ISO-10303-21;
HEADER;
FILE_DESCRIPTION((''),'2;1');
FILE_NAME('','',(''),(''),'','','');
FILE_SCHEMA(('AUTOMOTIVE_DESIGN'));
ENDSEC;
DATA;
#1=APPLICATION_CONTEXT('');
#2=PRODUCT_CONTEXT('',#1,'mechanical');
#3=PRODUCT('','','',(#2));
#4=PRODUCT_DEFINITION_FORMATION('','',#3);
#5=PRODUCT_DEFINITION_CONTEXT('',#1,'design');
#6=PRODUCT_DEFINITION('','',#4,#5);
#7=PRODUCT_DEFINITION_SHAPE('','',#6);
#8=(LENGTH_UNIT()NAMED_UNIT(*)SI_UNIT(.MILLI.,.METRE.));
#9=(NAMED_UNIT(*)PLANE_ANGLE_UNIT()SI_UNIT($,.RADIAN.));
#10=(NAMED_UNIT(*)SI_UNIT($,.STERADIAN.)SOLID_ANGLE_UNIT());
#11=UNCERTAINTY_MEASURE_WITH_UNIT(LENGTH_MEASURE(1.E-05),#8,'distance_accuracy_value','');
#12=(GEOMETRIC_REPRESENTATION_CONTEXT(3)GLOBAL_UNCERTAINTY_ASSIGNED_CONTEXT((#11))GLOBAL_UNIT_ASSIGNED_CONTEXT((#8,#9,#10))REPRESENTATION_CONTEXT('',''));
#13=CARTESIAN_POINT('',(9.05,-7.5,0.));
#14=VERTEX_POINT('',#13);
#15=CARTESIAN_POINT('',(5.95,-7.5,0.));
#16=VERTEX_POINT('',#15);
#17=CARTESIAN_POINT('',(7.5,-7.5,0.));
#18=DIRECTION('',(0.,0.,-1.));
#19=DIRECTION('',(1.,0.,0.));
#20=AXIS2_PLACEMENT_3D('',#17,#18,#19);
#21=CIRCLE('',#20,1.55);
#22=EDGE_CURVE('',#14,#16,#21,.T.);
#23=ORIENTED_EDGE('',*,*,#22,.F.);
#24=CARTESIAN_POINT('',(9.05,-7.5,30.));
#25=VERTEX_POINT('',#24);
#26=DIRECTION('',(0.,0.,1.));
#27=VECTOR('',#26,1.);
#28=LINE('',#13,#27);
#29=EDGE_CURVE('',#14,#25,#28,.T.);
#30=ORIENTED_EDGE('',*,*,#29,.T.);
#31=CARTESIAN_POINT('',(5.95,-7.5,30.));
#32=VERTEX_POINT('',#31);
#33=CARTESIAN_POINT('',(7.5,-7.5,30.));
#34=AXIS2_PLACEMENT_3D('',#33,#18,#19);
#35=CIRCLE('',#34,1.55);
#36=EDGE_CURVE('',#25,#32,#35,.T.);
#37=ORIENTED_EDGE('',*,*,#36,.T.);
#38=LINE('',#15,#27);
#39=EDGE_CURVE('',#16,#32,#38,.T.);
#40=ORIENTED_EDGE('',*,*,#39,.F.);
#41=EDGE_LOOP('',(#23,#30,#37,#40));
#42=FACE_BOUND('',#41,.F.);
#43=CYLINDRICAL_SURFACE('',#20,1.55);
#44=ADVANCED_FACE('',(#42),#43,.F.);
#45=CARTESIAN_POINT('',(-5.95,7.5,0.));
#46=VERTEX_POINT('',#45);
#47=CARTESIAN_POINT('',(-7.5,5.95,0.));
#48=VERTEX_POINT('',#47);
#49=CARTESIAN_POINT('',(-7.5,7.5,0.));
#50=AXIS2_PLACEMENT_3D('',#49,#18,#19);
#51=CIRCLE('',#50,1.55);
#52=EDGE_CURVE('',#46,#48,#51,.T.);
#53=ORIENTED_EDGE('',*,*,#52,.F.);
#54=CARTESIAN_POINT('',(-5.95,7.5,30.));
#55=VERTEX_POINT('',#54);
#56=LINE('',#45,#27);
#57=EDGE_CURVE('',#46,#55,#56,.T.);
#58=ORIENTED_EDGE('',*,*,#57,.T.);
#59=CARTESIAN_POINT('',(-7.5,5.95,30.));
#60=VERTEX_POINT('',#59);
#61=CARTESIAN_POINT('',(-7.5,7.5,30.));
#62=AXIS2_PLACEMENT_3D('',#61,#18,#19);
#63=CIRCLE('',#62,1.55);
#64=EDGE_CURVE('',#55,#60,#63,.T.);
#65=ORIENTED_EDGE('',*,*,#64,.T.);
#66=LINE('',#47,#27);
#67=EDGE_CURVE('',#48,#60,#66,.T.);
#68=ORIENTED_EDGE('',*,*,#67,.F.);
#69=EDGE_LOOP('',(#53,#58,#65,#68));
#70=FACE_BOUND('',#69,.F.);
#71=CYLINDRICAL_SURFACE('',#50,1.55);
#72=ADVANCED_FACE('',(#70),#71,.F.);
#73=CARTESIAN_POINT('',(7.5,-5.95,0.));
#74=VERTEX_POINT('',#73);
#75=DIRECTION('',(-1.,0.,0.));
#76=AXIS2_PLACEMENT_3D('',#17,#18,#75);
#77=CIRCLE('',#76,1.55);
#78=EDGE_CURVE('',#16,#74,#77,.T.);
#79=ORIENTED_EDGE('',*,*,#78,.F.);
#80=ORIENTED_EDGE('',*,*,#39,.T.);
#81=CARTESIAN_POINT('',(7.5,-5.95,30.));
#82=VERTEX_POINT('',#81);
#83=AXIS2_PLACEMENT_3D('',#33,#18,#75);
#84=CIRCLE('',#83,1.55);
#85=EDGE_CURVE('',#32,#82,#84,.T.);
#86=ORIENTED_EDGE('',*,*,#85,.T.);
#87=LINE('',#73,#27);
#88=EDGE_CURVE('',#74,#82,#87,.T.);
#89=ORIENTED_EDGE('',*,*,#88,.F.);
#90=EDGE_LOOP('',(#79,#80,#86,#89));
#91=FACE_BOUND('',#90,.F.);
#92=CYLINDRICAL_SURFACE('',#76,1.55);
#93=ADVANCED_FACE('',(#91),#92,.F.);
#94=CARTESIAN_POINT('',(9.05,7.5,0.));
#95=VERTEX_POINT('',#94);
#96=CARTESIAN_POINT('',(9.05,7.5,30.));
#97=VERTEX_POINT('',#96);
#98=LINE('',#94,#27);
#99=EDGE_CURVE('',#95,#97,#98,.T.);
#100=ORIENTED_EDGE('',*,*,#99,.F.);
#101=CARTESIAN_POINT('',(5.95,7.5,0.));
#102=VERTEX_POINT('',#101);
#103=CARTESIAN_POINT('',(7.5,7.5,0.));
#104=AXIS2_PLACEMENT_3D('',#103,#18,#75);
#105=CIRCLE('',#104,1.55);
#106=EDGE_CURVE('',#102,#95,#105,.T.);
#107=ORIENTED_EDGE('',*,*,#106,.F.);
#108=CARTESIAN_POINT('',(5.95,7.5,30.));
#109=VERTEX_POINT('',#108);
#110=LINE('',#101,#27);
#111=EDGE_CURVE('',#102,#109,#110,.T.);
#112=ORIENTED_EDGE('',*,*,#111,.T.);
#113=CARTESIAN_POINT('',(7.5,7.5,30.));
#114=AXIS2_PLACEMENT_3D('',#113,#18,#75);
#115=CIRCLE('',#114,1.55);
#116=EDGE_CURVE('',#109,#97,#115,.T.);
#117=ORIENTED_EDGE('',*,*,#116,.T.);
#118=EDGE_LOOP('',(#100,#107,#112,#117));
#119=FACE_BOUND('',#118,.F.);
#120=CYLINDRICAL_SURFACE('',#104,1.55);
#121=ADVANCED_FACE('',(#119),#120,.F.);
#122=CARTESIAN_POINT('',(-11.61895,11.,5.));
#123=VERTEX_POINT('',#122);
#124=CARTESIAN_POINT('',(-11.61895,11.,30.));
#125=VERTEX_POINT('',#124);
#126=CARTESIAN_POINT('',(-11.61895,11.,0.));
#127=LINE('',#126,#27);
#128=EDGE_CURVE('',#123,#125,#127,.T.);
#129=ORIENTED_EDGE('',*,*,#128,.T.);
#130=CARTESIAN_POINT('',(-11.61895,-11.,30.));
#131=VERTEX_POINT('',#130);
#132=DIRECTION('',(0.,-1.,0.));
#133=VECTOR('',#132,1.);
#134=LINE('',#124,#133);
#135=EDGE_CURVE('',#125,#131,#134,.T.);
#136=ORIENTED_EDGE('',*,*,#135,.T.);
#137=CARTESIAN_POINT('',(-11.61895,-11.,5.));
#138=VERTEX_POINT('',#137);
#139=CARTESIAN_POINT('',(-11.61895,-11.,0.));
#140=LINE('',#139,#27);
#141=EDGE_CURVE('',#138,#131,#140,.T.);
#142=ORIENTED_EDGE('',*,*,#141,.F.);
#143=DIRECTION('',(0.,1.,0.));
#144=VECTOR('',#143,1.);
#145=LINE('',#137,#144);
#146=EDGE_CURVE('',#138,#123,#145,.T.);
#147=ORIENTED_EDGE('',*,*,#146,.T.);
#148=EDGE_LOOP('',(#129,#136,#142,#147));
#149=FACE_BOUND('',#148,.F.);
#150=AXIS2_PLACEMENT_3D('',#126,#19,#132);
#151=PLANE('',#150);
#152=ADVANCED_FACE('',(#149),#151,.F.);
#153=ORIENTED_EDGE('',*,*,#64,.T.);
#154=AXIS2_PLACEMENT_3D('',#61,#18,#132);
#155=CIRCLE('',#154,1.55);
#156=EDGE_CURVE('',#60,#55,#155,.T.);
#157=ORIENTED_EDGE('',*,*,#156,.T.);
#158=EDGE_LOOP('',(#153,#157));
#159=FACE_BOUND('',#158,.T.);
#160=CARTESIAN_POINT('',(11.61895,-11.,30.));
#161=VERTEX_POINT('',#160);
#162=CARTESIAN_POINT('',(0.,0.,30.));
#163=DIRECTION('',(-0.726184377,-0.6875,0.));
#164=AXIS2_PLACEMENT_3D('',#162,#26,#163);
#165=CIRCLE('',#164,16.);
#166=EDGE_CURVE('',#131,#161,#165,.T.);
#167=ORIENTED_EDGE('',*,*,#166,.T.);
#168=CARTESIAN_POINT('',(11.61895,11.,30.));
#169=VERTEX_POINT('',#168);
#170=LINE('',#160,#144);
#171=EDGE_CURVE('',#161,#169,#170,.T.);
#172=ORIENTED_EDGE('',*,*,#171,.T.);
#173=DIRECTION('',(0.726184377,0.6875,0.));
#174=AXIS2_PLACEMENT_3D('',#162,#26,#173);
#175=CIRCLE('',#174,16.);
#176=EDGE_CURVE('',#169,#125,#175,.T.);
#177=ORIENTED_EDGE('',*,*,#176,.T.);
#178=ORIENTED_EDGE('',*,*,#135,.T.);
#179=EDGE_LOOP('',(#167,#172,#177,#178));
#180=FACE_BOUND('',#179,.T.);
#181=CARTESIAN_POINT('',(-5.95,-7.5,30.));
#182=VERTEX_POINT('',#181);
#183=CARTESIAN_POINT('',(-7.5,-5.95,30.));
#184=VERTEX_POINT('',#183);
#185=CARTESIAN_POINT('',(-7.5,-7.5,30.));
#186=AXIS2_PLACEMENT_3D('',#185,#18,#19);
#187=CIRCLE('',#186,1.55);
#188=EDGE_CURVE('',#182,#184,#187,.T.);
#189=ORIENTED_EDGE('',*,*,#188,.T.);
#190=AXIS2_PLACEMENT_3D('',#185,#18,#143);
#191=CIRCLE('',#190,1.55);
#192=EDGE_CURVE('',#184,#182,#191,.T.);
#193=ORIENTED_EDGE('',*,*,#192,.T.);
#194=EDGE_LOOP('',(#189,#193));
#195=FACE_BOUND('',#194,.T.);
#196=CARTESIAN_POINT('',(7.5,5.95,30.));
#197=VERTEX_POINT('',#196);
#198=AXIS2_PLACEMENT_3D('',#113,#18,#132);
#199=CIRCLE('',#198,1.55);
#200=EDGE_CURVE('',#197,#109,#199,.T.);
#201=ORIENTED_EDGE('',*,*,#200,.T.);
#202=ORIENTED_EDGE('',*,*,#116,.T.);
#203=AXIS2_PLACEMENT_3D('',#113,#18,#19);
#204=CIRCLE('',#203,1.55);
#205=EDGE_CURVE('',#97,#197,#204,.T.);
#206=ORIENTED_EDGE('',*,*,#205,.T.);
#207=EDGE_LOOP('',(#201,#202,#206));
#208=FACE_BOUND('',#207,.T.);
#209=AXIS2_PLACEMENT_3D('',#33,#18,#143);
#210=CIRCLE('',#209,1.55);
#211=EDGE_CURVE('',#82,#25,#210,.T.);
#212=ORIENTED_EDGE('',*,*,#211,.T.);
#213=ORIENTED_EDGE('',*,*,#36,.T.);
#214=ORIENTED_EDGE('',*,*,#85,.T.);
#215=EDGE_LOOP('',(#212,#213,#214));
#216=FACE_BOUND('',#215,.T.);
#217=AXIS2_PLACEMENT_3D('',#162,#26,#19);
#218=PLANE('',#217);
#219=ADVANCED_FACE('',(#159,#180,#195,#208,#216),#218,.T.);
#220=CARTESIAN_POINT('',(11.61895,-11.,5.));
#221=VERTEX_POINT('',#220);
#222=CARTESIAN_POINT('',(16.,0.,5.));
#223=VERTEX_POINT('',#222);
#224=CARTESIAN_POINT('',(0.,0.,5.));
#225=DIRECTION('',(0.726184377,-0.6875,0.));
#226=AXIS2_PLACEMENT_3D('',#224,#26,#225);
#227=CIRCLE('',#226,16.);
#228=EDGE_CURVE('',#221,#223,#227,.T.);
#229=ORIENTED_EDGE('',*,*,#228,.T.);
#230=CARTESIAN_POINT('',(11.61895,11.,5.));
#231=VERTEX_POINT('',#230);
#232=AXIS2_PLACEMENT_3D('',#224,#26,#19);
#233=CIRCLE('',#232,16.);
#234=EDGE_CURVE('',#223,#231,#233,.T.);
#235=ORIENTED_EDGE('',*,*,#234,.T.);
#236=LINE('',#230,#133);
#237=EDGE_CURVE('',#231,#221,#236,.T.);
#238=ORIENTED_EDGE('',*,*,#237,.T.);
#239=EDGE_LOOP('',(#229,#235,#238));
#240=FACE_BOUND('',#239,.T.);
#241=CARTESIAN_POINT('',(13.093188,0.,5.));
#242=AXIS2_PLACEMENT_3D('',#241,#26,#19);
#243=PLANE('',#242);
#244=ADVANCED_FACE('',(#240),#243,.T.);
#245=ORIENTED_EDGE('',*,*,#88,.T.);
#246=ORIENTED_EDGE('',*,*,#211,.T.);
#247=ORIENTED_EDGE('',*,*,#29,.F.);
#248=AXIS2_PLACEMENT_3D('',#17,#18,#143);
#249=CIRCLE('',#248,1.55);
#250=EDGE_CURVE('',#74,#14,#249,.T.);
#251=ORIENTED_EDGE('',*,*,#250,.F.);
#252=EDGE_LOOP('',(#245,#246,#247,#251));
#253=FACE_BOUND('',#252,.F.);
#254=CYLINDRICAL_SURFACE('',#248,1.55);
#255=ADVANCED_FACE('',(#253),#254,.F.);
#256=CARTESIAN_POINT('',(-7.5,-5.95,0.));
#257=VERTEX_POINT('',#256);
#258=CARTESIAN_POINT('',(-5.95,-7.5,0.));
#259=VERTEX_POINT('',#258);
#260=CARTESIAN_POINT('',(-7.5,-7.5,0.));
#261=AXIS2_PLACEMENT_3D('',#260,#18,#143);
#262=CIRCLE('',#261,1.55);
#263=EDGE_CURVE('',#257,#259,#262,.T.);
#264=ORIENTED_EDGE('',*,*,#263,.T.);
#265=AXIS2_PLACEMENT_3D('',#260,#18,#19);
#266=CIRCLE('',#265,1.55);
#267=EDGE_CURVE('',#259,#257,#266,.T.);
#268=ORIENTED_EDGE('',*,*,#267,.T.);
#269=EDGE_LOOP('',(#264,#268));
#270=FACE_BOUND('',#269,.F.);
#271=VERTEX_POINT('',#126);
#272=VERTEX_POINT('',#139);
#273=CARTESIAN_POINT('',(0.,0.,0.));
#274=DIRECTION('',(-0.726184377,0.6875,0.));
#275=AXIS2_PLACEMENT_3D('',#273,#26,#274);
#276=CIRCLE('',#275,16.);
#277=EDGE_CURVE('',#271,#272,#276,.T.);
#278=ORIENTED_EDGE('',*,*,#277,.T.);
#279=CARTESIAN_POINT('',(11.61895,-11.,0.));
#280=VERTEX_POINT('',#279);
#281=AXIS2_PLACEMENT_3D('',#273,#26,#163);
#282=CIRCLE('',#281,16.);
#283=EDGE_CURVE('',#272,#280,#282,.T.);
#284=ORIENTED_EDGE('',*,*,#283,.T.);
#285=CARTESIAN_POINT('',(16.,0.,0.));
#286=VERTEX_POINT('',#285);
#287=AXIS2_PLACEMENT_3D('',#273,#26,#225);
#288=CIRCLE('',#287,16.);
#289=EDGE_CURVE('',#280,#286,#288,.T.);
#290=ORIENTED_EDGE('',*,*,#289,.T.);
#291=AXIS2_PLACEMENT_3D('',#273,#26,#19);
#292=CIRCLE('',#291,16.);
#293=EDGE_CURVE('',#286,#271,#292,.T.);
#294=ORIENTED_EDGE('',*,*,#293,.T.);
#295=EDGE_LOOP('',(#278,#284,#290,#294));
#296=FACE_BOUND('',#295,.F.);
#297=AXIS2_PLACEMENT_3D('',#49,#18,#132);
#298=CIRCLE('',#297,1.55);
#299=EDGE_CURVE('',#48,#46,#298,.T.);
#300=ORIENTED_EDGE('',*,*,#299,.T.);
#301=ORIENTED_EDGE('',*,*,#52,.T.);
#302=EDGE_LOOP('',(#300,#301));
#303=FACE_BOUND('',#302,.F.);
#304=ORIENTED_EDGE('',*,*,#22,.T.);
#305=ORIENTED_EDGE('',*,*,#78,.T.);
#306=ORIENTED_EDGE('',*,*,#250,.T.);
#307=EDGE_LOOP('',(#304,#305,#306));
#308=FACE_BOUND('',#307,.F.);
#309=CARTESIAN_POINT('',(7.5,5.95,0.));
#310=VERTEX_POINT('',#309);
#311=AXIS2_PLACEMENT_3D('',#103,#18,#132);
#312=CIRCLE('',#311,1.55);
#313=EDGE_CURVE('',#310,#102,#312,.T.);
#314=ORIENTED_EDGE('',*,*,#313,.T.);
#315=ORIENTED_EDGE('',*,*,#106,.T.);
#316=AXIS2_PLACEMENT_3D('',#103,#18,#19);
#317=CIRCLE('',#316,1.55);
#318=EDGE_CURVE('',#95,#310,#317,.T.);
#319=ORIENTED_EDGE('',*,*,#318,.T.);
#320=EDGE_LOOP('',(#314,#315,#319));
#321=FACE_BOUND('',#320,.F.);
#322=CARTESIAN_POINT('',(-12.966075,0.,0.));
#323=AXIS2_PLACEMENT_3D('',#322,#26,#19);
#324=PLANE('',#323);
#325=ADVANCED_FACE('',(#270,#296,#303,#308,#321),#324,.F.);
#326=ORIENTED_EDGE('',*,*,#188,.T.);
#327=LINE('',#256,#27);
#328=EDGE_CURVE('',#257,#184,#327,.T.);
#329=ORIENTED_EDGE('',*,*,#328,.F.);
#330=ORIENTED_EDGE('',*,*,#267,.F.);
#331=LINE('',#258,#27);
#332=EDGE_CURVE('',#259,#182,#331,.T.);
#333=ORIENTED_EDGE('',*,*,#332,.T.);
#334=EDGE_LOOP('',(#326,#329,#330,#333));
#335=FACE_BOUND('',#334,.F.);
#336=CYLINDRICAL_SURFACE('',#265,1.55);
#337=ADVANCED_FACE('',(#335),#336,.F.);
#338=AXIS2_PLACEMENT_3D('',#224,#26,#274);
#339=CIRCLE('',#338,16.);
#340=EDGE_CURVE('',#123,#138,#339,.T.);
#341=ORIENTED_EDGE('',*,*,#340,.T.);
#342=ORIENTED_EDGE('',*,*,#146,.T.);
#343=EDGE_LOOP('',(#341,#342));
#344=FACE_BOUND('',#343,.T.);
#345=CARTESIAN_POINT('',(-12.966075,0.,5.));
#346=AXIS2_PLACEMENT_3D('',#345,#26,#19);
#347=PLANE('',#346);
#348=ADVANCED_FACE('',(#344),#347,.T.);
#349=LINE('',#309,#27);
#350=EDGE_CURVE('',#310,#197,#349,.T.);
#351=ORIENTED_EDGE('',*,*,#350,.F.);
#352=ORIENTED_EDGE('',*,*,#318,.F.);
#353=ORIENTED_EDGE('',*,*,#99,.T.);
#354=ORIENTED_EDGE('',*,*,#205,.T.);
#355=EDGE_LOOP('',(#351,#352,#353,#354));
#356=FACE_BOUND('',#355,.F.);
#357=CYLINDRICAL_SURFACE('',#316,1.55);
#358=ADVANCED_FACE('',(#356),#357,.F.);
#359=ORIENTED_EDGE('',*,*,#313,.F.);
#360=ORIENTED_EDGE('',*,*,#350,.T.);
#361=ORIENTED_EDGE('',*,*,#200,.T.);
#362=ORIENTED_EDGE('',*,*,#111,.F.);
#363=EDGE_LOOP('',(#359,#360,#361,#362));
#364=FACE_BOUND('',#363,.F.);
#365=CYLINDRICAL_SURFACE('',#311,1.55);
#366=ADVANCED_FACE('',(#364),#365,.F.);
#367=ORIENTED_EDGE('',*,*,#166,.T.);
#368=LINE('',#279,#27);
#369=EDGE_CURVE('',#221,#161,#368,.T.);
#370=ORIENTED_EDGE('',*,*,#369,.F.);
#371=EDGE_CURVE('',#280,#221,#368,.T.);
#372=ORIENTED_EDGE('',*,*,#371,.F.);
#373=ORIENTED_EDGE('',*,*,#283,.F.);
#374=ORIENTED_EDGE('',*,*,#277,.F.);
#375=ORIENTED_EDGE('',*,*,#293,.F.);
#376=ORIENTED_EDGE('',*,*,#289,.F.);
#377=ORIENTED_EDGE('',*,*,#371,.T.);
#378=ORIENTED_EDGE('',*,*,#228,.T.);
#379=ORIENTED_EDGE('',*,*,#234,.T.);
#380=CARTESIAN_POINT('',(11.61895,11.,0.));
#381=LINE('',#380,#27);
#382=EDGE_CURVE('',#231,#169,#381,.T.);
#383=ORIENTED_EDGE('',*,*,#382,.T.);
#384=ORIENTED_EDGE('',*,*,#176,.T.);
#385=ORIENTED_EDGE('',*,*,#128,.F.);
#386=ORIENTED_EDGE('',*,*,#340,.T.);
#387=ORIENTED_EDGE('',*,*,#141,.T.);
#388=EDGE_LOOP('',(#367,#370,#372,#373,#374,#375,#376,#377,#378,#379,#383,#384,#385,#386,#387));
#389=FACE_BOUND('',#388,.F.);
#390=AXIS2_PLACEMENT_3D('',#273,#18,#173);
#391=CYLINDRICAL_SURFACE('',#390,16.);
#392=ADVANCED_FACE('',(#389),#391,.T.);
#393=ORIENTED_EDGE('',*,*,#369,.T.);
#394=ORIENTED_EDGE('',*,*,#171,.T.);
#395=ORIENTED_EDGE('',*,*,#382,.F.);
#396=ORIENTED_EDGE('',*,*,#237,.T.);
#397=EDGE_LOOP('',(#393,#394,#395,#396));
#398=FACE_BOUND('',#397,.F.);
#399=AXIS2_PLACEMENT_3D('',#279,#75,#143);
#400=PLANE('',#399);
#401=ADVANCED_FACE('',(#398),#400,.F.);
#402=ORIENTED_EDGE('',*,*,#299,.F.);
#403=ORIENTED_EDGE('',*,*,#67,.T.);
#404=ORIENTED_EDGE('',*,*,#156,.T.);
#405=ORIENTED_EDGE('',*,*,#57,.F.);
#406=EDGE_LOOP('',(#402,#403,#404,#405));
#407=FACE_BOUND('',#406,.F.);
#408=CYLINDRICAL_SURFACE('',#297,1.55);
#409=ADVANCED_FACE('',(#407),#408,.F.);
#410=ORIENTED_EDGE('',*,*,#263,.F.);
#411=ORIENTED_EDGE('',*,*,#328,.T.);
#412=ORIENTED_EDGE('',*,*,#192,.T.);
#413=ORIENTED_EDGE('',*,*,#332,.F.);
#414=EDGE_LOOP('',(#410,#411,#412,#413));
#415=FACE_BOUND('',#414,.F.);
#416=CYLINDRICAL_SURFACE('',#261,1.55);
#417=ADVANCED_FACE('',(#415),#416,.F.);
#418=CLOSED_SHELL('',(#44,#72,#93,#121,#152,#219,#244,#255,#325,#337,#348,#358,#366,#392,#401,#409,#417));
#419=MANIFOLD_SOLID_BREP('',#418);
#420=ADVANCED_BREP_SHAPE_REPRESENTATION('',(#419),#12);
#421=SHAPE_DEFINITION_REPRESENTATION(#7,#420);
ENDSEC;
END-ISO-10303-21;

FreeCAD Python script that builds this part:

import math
import FreeCAD as App
import Part
import Sketcher
Q = App.Units.Quantity

doc = App.newDocument("Part")
body = doc.addObject("PartDesign::Body", "Body")

# Sketch on XY plane
sketch1 = body.newObject("Sketcher::SketchObject", "Sketch")
sketch1.AttachmentSupport = (doc.getObject("XY_Plane"), [""])
sketch1.MapMode = "FlatFace"
sketch1.addGeometry([
    Part.LineSegment(App.Vector(11.6, -11, 0), App.Vector(11.6, 11, 0)),  # 0
    Part.ArcOfCircle(Part.Circle(App.Vector(0, 0, 0), App.Vector(0, 0, 1), 16), math.radians(43), math.radians(137)),  # 1
    Part.LineSegment(App.Vector(-11.6, 11, 0), App.Vector(-11.6, -11, 0)),  # 2
    Part.ArcOfCircle(Part.Circle(App.Vector(0, 0, 0), App.Vector(0, 0, 1), 16), math.radians(-137), math.radians(-43)),  # 3
    Part.ArcOfCircle(Part.Circle(App.Vector(7.5, -7.5, 0), App.Vector(0, 0, 1), 1.6), math.radians(180), math.radians(360)),  # 4
    Part.ArcOfCircle(Part.Circle(App.Vector(7.5, -7.5, 0), App.Vector(0, 0, 1), 1.6), math.radians(90), math.radians(180)),  # 5
    Part.ArcOfCircle(Part.Circle(App.Vector(7.5, -7.5, 0), App.Vector(0, 0, 1), 1.6), math.radians(0), math.radians(90)),  # 6
    Part.ArcOfCircle(Part.Circle(App.Vector(7.5, 7.5, 0), App.Vector(0, 0, 1), 1.6), math.radians(-90), math.radians(0)),  # 7
    Part.ArcOfCircle(Part.Circle(App.Vector(7.5, 7.5, 0), App.Vector(0, 0, 1), 1.6), math.radians(180), math.radians(270)),  # 8
    Part.ArcOfCircle(Part.Circle(App.Vector(7.5, 7.5, 0), App.Vector(0, 0, 1), 1.6), math.radians(0), math.radians(180)),  # 9
    Part.ArcOfCircle(Part.Circle(App.Vector(-7.5, 7.5, 0), App.Vector(0, 0, 1), 1.6), math.radians(0), math.radians(270)),  # 10
    Part.ArcOfCircle(Part.Circle(App.Vector(-7.5, 7.5, 0), App.Vector(0, 0, 1), 1.6), math.radians(-90), math.radians(0)),  # 11
    Part.ArcOfCircle(Part.Circle(App.Vector(-7.5, -7.5, 0), App.Vector(0, 0, 1), 1.6), math.radians(90), math.radians(360)),  # 12
    Part.ArcOfCircle(Part.Circle(App.Vector(-7.5, -7.5, 0), App.Vector(0, 0, 1), 1.6), math.radians(0), math.radians(90)),  # 13
], False)
sketch1.addConstraint([
    Sketcher.Constraint("Coincident", 0, 2, 1, 1),
    Sketcher.Constraint("Coincident", 1, 2, 2, 1),
    Sketcher.Constraint("Coincident", 2, 2, 3, 1),
    Sketcher.Constraint("Coincident", 3, 2, 0, 1),
    Sketcher.Constraint("Tangent", 4, 1, 5, 2),
    Sketcher.Constraint("Tangent", 5, 1, 6, 2),
    Sketcher.Constraint("Tangent", 6, 1, 4, 2),
    Sketcher.Constraint("Tangent", 7, 1, 8, 2),
    Sketcher.Constraint("Tangent", 8, 1, 9, 2),
    Sketcher.Constraint("Tangent", 9, 1, 7, 2),
    Sketcher.Constraint("Tangent", 10, 1, 11, 2),
    Sketcher.Constraint("Coincident", 11, 1, 10, 2),
    Sketcher.Constraint("Tangent", 12, 1, 13, 2),
    Sketcher.Constraint("Coincident", 13, 1, 12, 2),
    Sketcher.Constraint("Vertical", 0),
    Sketcher.Constraint("Vertical", 2),
    Sketcher.Constraint("Coincident", 1, 3, -1, 1),
    Sketcher.Constraint("Coincident", 3, 3, -1, 1),
    Sketcher.Constraint("Equal", 1, 3),
    Sketcher.Constraint("Equal", 6, 7),
    Sketcher.Constraint("Equal", 9, 10),
    Sketcher.Constraint("Equal", 11, 12),
    Sketcher.Constraint("Symmetric", 4, 3, 10, 3, -1, 1),
    Sketcher.Constraint("Symmetric", 7, 3, 12, 3, -1, 1),
    Sketcher.Constraint("Symmetric", 7, 3, 10, 3, -2),
    Sketcher.Constraint("Horizontal", 0, 2, 1, 2),
    Sketcher.Constraint("Horizontal", 13, 3, 4, 1),
    Sketcher.Constraint("Horizontal", 4, 1, 6, 1),
    Sketcher.Constraint("Horizontal", 11, 3, 8, 1),
    Sketcher.Constraint("Horizontal", 8, 1, 9, 1),
    Sketcher.Constraint("Horizontal", 9, 1, 10, 1),
    Sketcher.Constraint("Horizontal", 6, 1, 13, 1),
    Sketcher.Constraint("Vertical", 9, 3, 5, 1),
    Sketcher.Constraint("Vertical", 5, 1, 7, 1),
    Sketcher.Constraint("Vertical", 13, 3, 11, 1),
    Sketcher.Constraint("Vertical", 11, 1, 12, 1),
    Sketcher.Constraint("Radius", 1, Q("16 mm")),
    Sketcher.Constraint("DistanceY", 0, 1, 0, 2, Q("22 mm")),
    Sketcher.Constraint("Radius", 4, Q("1.55 mm")),
    Sketcher.Constraint("DistanceY", 4, 3, 7, 3, Q("15 mm")),
    Sketcher.Constraint("DistanceX", 10, 3, 7, 3, Q("15 mm")),
])
pad1 = body.newObject("PartDesign::Pad", "Pad")
pad1.Profile = sketch1
pad1.Length = 30

# Sketch on XY plane
sketch2 = body.newObject("Sketcher::SketchObject", "Sketch001")
sketch2.AttachmentSupport = (doc.getObject("XY_Plane"), [""])
sketch2.MapMode = "FlatFace"
sketch2.addGeometry([
    Part.LineSegment(App.Vector(-12, -11, 0), App.Vector(-12, 11, 0)),  # 0
    Part.ArcOfCircle(Part.Circle(App.Vector(0, 0, 0), App.Vector(0, 0, 1), 16), math.radians(137), math.radians(223)),  # 1
    Part.ArcOfCircle(Part.Circle(App.Vector(0, 0, 0), App.Vector(0, 0, 1), 16), math.radians(-43), math.radians(0)),  # 2
    Part.ArcOfCircle(Part.Circle(App.Vector(0, 0, 0), App.Vector(0, 0, 1), 16), math.radians(0), math.radians(43)),  # 3
    Part.LineSegment(App.Vector(12, 11, 0), App.Vector(12, -11, 0)),  # 4
], False)
sketch2.addConstraint([
    Sketcher.Constraint("Coincident", 0, 1, 1, 2),
    Sketcher.Constraint("Coincident", 1, 1, 0, 2),
    Sketcher.Constraint("Tangent", 2, 2, 3, 1),
    Sketcher.Constraint("Coincident", 3, 2, 4, 1),
    Sketcher.Constraint("Coincident", 4, 2, 2, 1),
    Sketcher.Constraint("Vertical", 0),
    Sketcher.Constraint("Vertical", 4),
    Sketcher.Constraint("Coincident", 1, 3, -1, 1),
    Sketcher.Constraint("Coincident", 2, 3, -1, 1),
    Sketcher.Constraint("Equal", 1, 2),
    Sketcher.Constraint("Equal", 2, 3),
    Sketcher.Constraint("PointOnObject", 2, 2, -1),
    Sketcher.Constraint("Horizontal", 1, 1, 3, 2),
    Sketcher.Constraint("Radius", 1, Q("16 mm")),
    Sketcher.Constraint("DistanceY", 0, 1, 0, 2, Q("22 mm")),
])
pad2 = body.newObject("PartDesign::Pad", "Pad001")
pad2.Profile = sketch2
pad2.Length = 5

doc.recompute()
